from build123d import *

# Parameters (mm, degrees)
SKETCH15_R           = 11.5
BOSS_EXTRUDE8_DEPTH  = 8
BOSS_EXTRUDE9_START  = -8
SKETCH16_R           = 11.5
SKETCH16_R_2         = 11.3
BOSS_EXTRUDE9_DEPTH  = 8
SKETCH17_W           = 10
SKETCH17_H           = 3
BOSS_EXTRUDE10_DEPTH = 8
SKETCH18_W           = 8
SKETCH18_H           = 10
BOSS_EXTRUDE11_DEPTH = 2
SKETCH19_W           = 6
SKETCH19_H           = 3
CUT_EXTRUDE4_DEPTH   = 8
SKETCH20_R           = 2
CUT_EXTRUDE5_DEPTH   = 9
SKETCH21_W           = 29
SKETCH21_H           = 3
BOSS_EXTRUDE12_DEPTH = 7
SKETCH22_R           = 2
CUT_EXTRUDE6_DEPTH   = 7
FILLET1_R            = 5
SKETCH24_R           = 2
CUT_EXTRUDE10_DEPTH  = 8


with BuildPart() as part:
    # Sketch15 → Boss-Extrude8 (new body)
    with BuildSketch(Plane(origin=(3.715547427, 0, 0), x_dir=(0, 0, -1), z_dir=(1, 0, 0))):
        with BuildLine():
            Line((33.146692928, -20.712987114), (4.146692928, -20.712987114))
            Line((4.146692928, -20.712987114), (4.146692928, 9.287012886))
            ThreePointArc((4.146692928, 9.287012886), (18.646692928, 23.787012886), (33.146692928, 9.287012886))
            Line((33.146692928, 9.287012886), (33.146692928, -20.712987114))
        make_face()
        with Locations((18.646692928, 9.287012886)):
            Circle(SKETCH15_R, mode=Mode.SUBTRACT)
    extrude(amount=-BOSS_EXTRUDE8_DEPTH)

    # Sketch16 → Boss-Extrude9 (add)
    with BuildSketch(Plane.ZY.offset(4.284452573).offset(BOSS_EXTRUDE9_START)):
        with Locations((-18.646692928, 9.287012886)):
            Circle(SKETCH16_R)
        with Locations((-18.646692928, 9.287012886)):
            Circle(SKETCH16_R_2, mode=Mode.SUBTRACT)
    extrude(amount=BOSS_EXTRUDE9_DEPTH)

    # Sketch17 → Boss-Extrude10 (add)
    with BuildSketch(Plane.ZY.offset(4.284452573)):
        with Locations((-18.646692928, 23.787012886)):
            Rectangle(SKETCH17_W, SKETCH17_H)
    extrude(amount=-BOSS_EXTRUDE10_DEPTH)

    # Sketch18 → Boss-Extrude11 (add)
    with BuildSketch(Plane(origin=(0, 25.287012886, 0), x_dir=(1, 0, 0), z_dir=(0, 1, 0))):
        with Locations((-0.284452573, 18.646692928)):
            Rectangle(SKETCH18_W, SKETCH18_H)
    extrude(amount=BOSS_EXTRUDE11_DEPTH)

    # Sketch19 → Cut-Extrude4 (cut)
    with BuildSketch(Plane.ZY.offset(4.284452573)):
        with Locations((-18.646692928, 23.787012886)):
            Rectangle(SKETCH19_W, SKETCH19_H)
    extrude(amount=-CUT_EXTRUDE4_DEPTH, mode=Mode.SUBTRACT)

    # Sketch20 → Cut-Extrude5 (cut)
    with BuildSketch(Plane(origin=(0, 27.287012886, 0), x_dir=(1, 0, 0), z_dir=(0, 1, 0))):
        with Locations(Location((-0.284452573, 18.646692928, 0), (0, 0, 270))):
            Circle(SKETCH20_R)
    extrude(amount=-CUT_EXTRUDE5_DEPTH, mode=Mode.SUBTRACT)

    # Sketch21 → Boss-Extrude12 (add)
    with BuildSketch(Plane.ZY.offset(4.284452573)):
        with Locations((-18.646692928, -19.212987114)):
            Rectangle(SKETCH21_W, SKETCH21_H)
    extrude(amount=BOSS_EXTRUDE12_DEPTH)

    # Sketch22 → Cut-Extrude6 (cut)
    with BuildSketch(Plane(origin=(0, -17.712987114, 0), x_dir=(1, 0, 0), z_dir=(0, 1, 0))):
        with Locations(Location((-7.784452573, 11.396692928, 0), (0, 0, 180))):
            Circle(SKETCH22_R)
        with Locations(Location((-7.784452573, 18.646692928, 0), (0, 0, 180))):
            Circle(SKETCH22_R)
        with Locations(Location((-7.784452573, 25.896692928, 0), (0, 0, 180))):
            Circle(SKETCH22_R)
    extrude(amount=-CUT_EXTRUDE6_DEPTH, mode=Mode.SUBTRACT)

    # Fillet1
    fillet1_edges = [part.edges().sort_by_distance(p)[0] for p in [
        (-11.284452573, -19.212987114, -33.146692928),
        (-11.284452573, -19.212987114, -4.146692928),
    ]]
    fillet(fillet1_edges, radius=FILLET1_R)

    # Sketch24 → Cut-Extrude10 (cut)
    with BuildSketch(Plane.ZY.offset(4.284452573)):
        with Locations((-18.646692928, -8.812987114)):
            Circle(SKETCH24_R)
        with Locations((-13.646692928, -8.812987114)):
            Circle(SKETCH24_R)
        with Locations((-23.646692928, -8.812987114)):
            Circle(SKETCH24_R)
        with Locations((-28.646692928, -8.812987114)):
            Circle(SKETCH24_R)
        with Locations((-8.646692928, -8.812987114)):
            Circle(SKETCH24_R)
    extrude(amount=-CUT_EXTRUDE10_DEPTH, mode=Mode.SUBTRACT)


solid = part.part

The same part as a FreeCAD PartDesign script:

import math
import FreeCAD as App
import Part
import Sketcher

V = App.Vector


def edges_at(feature, points):
    """Names of the edges that pass closest to the given points."""
    edges = feature.Shape.Edges
    near = lambda p: min(range(len(edges)), key=lambda i: edges[i].distToShape(Part.Vertex(*p))[0])
    return sorted({f"Edge{near(p) + 1}" for p in points})

doc = App.newDocument("Part")
body = doc.addObject("PartDesign::Body", "Body")

# Sketch on YZ plane
sketch1 = body.newObject("Sketcher::SketchObject", "Sketch")
sketch1.AttachmentSupport = (doc.getObject("YZ_Plane"), [""])
sketch1.MapMode = "FlatFace"
sketch1.AttachmentOffset = App.Placement(V(0, 0, 3.715547), App.Rotation())
sketch1.addGeometry(Part.LineSegment(V(-21, -4, 0), V(-21, -33, 0)), False)
sketch1.addGeometry(Part.LineSegment(V(-21, -33, 0), V(9, -33, 0)), False)
sketch1.addGeometry(Part.ArcOfCircle(Part.Circle(V(9, -19, 0), V(0, 0, 1), 14), math.radians(-90), math.radians(90)), False)
sketch1.addGeometry(Part.LineSegment(V(9, -4, 0), V(-21, -4, 0)), False)
sketch1.addGeometry(Part.Circle(V(9, -19, 0), V(0, 0, 1), 12), False)
sketch1.addConstraint(Sketcher.Constraint("Coincident", 0, 2, 1, 1))
sketch1.addConstraint(Sketcher.Constraint("Tangent", 1, 2, 2, 1))
sketch1.addConstraint(Sketcher.Constraint("Tangent", 2, 2, 3, 1))
sketch1.addConstraint(Sketcher.Constraint("Coincident", 3, 2, 0, 1))
sketch1.addConstraint(Sketcher.Constraint("Vertical", 0))
sketch1.addConstraint(Sketcher.Constraint("Horizontal", 1))
sketch1.addConstraint(Sketcher.Constraint("Horizontal", 3))
sketch1.addConstraint(Sketcher.Constraint("Coincident", 4, 3, 2, 3))
sketch1.addConstraint(Sketcher.Constraint("Diameter", 4, 23.0))
sketch1.addConstraint(Sketcher.Constraint("Radius", 2, 14.5))
sketch1.addConstraint(Sketcher.Constraint("DistanceX", 1, 1, 1, 2, 30.0))
sketch1.addConstraint(Sketcher.Constraint("DistanceX", -1, 1, 2, 3, 9.287013))
sketch1.addConstraint(Sketcher.Constraint("DistanceY", 2, 3, -1, 1, 18.646693))
pad1 = body.newObject("PartDesign::Pad", "Pad")
pad1.Profile = sketch1
pad1.Length = 8
pad1.Reversed = True

# Sketch on YZ plane
sketch2 = body.newObject("Sketcher::SketchObject", "Sketch001")
sketch2.AttachmentSupport = (doc.getObject("YZ_Plane"), [""])
sketch2.MapMode = "FlatFace"
sketch2.AttachmentOffset = App.Placement(V(0, 0, 3.715547), App.Rotation())
sketch2.addGeometry(Part.Circle(V(9, -19, 0), V(0, 0, 1), 12), False)
sketch2.addGeometry(Part.Circle(V(9, -19, 0), V(0, 0, 1), 11), False)
sketch2.addConstraint(Sketcher.Constraint("Coincident", 1, 3, 0, 3))
sketch2.addConstraint(Sketcher.Constraint("Diameter", 0, 23.0))
sketch2.addConstraint(Sketcher.Constraint("Diameter", 1, 22.6))
sketch2.addConstraint(Sketcher.Constraint("DistanceX", -1, 1, 0, 3, 9.287013))
sketch2.addConstraint(Sketcher.Constraint("DistanceY", 0, 3, -1, 1, 18.646693))
pad2 = body.newObject("PartDesign::Pad", "Pad001")
pad2.Profile = sketch2
pad2.Length = 8
pad2.Reversed = True

# Sketch on YZ plane
sketch3 = body.newObject("Sketcher::SketchObject", "Sketch002")
sketch3.AttachmentSupport = (doc.getObject("YZ_Plane"), [""])
sketch3.MapMode = "FlatFace"
sketch3.AttachmentOffset = App.Placement(V(0, 0, -4.284453), App.Rotation())
sketch3.addGeometry(Part.LineSegment(V(25.3, -23.6, 0), V(22.3, -23.6, 0)), False)
sketch3.addGeometry(Part.LineSegment(V(22.3, -23.6, 0), V(22.3, -13.6, 0)), False)
sketch3.addGeometry(Part.LineSegment(V(22.3, -13.6, 0), V(25.3, -13.6, 0)), False)
sketch3.addGeometry(Part.LineSegment(V(25.3, -13.6, 0), V(25.3, -23.6, 0)), False)
sketch3.addConstraint(Sketcher.Constraint("Coincident", 0, 2, 1, 1))
sketch3.addConstraint(Sketcher.Constraint("Coincident", 1, 2, 2, 1))
sketch3.addConstraint(Sketcher.Constraint("Coincident", 2, 2, 3, 1))
sketch3.addConstraint(Sketcher.Constraint("Coincident", 3, 2, 0, 1))
sketch3.addConstraint(Sketcher.Constraint("Horizontal", 0))
sketch3.addConstraint(Sketcher.Constraint("Vertical", 1))
sketch3.addConstraint(Sketcher.Constraint("Horizontal", 2))
sketch3.addConstraint(Sketcher.Constraint("Vertical", 3))
sketch3.addConstraint(Sketcher.Constraint("DistanceX", 0, 2, 0, 1, 3.0))
sketch3.addConstraint(Sketcher.Constraint("DistanceY", 1, 1, 1, 2, 10.0))
sketch3.addConstraint(Sketcher.Constraint("DistanceX", -1, 1, 0, 2, 22.287013))
sketch3.addConstraint(Sketcher.Constraint("DistanceY", 0, 2, -1, 1, 23.646693))
pad3 = body.newObject("PartDesign::Pad", "Pad002")
pad3.Profile = sketch3
pad3.Length = 8

# Sketch on XZ plane
sketch4 = body.newObject("Sketcher::SketchObject", "Sketch003")
sketch4.AttachmentSupport = (doc.getObject("XZ_Plane"), [""])
sketch4.MapMode = "FlatFace"
sketch4.AttachmentOffset = App.Placement(V(0, 0, -25.287013), App.Rotation())
sketch4.addGeometry(Part.LineSegment(V(-4, -24, 0), V(-4, -14, 0)), False)
sketch4.addGeometry(Part.LineSegment(V(-4, -14, 0), V(4, -14, 0)), False)
sketch4.addGeometry(Part.LineSegment(V(4, -14, 0), V(4, -24, 0)), False)
sketch4.addGeometry(Part.LineSegment(V(4, -24, 0), V(-4, -24, 0)), False)
sketch4.addConstraint(Sketcher.Constraint("Coincident", 0, 2, 1, 1))
sketch4.addConstraint(Sketcher.Constraint("Coincident", 1, 2, 2, 1))
sketch4.addConstraint(Sketcher.Constraint("Coincident", 2, 2, 3, 1))
sketch4.addConstraint(Sketcher.Constraint("Coincident", 3, 2, 0, 1))
sketch4.addConstraint(Sketcher.Constraint("Vertical", 0))
sketch4.addConstraint(Sketcher.Constraint("Horizontal", 1))
sketch4.addConstraint(Sketcher.Constraint("Vertical", 2))
sketch4.addConstraint(Sketcher.Constraint("Horizontal", 3))
sketch4.addConstraint(Sketcher.Constraint("DistanceX", 1, 1, 1, 2, 8.0))
sketch4.addConstraint(Sketcher.Constraint("DistanceY", 0, 1, 0, 2, 10.0))
sketch4.addConstraint(Sketcher.Constraint("DistanceX", 0, 2, -1, 1, 4.284453))
sketch4.addConstraint(Sketcher.Constraint("DistanceY", 0, 2, -1, 1, 13.646693))
pad4 = body.newObject("PartDesign::Pad", "Pad003")
pad4.Profile = sketch4
pad4.Length = 2
pad4.Reversed = True

# Sketch on YZ plane
sketch5 = body.newObject("Sketcher::SketchObject", "Sketch004")
sketch5.AttachmentSupport = (doc.getObject("YZ_Plane"), [""])
sketch5.MapMode = "FlatFace"
sketch5.AttachmentOffset = App.Placement(V(0, 0, -4.284453), App.Rotation())
sketch5.addGeometry(Part.LineSegment(V(25.3, -21.6, 0), V(22.3, -21.6, 0)), False)
sketch5.addGeometry(Part.LineSegment(V(22.3, -21.6, 0), V(22.3, -15.6, 0)), False)
sketch5.addGeometry(Part.LineSegment(V(22.3, -15.6, 0), V(25.3, -15.6, 0)), False)
sketch5.addGeometry(Part.LineSegment(V(25.3, -15.6, 0), V(25.3, -21.6, 0)), False)
sketch5.addConstraint(Sketcher.Constraint("Coincident", 0, 2, 1, 1))
sketch5.addConstraint(Sketcher.Constraint("Coincident", 1, 2, 2, 1))
sketch5.addConstraint(Sketcher.Constraint("Coincident", 2, 2, 3, 1))
sketch5.addConstraint(Sketcher.Constraint("Coincident", 3, 2, 0, 1))
sketch5.addConstraint(Sketcher.Constraint("Horizontal", 0))
sketch5.addConstraint(Sketcher.Constraint("Vertical", 1))
sketch5.addConstraint(Sketcher.Constraint("Horizontal", 2))
sketch5.addConstraint(Sketcher.Constraint("Vertical", 3))
sketch5.addConstraint(Sketcher.Constraint("DistanceX", 0, 2, 0, 1, 3.0))
sketch5.addConstraint(Sketcher.Constraint("DistanceY", 1, 1, 1, 2, 6.0))
sketch5.addConstraint(Sketcher.Constraint("DistanceX", -1, 1, 0, 2, 22.287013))
sketch5.addConstraint(Sketcher.Constraint("DistanceY", 0, 2, -1, 1, 21.646693))
pocket1 = body.newObject("PartDesign::Pocket", "Pocket")
pocket1.Profile = sketch5
pocket1.Length = 8
pocket1.Reversed = True

# Sketch on XZ plane
sketch6 = body.newObject("Sketcher::SketchObject", "Sketch005")
sketch6.AttachmentSupport = (doc.getObject("XZ_Plane"), [""])
sketch6.MapMode = "FlatFace"
sketch6.AttachmentOffset = App.Placement(V(0, 0, -27.287013), App.Rotation())
sketch6.addGeometry(Part.Circle(V(-0.3, -18.6, 0), V(0, 0, 1), 2), False)
sketch6.addConstraint(Sketcher.Constraint("Diameter", 0, 4.0))
sketch6.addConstraint(Sketcher.Constraint("DistanceX", 0, 3, -1, 1, 0.284453))
sketch6.addConstraint(Sketcher.Constraint("DistanceY", 0, 3, -1, 1, 18.646693))
pocket2 = body.newObject("PartDesign::Pocket", "Pocket001")
pocket2.Profile = sketch6
pocket2.Length = 9
pocket2.Reversed = True

# Sketch on YZ plane
sketch7 = body.newObject("Sketcher::SketchObject", "Sketch006")
sketch7.AttachmentSupport = (doc.getObject("YZ_Plane"), [""])
sketch7.MapMode = "FlatFace"
sketch7.AttachmentOffset = App.Placement(V(0, 0, -4.284453), App.Rotation())
sketch7.addGeometry(Part.LineSegment(V(-17.7, -33.1, 0), V(-20.7, -33.1, 0)), False)
sketch7.addGeometry(Part.LineSegment(V(-20.7, -33.1, 0), V(-20.7, -4.1, 0)), False)
sketch7.addGeometry(Part.LineSegment(V(-20.7, -4.1, 0), V(-17.7, -4.1, 0)), False)
sketch7.addGeometry(Part.LineSegment(V(-17.7, -4.1, 0), V(-17.7, -33.1, 0)), False)
sketch7.addConstraint(Sketcher.Constraint("Coincident", 0, 2, 1, 1))
sketch7.addConstraint(Sketcher.Constraint("Coincident", 1, 2, 2, 1))
sketch7.addConstraint(Sketcher.Constraint("Coincident", 2, 2, 3, 1))
sketch7.addConstraint(Sketcher.Constraint("Coincident", 3, 2, 0, 1))
sketch7.addConstraint(Sketcher.Constraint("Horizontal", 0))
sketch7.addConstraint(Sketcher.Constraint("Vertical", 1))
sketch7.addConstraint(Sketcher.Constraint("Horizontal", 2))
sketch7.addConstraint(Sketcher.Constraint("Vertical", 3))
sketch7.addConstraint(Sketcher.Constraint("DistanceX", 0, 2, 0, 1, 3.0))
sketch7.addConstraint(Sketcher.Constraint("DistanceY", 1, 1, 1, 2, 29.0))
sketch7.addConstraint(Sketcher.Constraint("DistanceX", 0, 2, -1, 1, 20.712987))
sketch7.addConstraint(Sketcher.Constraint("DistanceY", 0, 2, -1, 1, 33.146693))
pad5 = body.newObject("PartDesign::Pad", "Pad004")
pad5.Profile = sketch7
pad5.Length = 7
pad5.Reversed = True

# Sketch on XZ plane
sketch8 = body.newObject("Sketcher::SketchObject", "Sketch007")
sketch8.AttachmentSupport = (doc.getObject("XZ_Plane"), [""])
sketch8.MapMode = "FlatFace"
sketch8.AttachmentOffset = App.Placement(V(0, 0, 17.712987), App.Rotation())
sketch8.addGeometry(Part.Circle(V(-7.8, -11.4, 0), V(0, 0, 1), 2), False)
sketch8.addGeometry(Part.Circle(V(-7.8, -18.6, 0), V(0, 0, 1), 2), False)
sketch8.addGeometry(Part.Circle(V(-7.8, -25.9, 0), V(0, 0, 1), 2), False)
sketch8.addConstraint(Sketcher.Constraint("Equal", 0, 1))
sketch8.addConstraint(Sketcher.Constraint("Equal", 1, 2))
sketch8.addConstraint(Sketcher.Constraint("Vertical", 0, 3, 1, 3))
sketch8.addConstraint(Sketcher.Constraint("Vertical", 1, 3, 2, 3))
sketch8.addConstraint(Sketcher.Constraint("Diameter", 0, 4.0))
sketch8.addConstraint(Sketcher.Constraint("DistanceY", 2, 3, 0, 3, 14.5))
sketch8.addConstraint(Sketcher.Constraint("DistanceY", 1, 3, 0, 3, 7.25))
sketch8.addConstraint(Sketcher.Constraint("DistanceX", 0, 3, -1, 1, 7.784453))
sketch8.addConstraint(Sketcher.Constraint("DistanceY", 0, 3, -1, 1, 11.396693))
pocket3 = body.newObject("PartDesign::Pocket", "Pocket002")
pocket3.Profile = sketch8
pocket3.Length = 7
pocket3.Reversed = True
doc.recompute()

fillet = body.newObject("PartDesign::Fillet", "Fillet")
fillet.Base = (pocket3, edges_at(pocket3, [(-11.284, -19.213, -33.147), (-11.284, -19.213, -4.147)]))
fillet.Radius = 5

# Sketch on YZ plane
sketch9 = body.newObject("Sketcher::SketchObject", "Sketch008")
sketch9.AttachmentSupport = (doc.getObject("YZ_Plane"), [""])
sketch9.MapMode = "FlatFace"
sketch9.AttachmentOffset = App.Placement(V(0, 0, -4.284453), App.Rotation())
sketch9.addGeometry(Part.Circle(V(-8.8, -18.6, 0), V(0, 0, 1), 2), False)
sketch9.addGeometry(Part.Circle(V(-8.8, -13.6, 0), V(0, 0, 1), 2), False)
sketch9.addGeometry(Part.Circle(V(-8.8, -23.6, 0), V(0, 0, 1), 2), False)
sketch9.addGeometry(Part.Circle(V(-8.8, -28.6, 0), V(0, 0, 1), 2), False)
sketch9.addGeometry(Part.Circle(V(-8.8, -8.6, 0), V(0, 0, 1), 2), False)
sketch9.addConstraint(Sketcher.Constraint("Equal", 0, 1))
sketch9.addConstraint(Sketcher.Constraint("Equal", 1, 2))
sketch9.addConstraint(Sketcher.Constraint("Equal", 2, 3))
sketch9.addConstraint(Sketcher.Constraint("Equal", 3, 4))
sketch9.addConstraint(Sketcher.Constraint("Vertical", 0, 3, 1, 3))
sketch9.addConstraint(Sketcher.Constraint("Vertical", 1, 3, 2, 3))
sketch9.addConstraint(Sketcher.Constraint("Vertical", 2, 3, 3, 3))
sketch9.addConstraint(Sketcher.Constraint("Vertical", 3, 3, 4, 3))
sketch9.addConstraint(Sketcher.Constraint("Diameter", 0, 4.0))
sketch9.addConstraint(Sketcher.Constraint("DistanceY", 0, 3, 1, 3, 5.0))
sketch9.addConstraint(Sketcher.Constraint("DistanceY", 2, 3, 0, 3, 5.0))
sketch9.addConstraint(Sketcher.Constraint("DistanceY", 3, 3, 2, 3, 5.0))
sketch9.addConstraint(Sketcher.Constraint("DistanceY", 1, 3, 4, 3, 5.0))
sketch9.addConstraint(Sketcher.Constraint("DistanceX", 0, 3, -1, 1, 8.812987))
sketch9.addConstraint(Sketcher.Constraint("DistanceY", 0, 3, -1, 1, 18.646693))
pocket4 = body.newObject("PartDesign::Pocket", "Pocket003")
pocket4.Profile = sketch9
pocket4.Length = 8
pocket4.Reversed = True

doc.recompute()
